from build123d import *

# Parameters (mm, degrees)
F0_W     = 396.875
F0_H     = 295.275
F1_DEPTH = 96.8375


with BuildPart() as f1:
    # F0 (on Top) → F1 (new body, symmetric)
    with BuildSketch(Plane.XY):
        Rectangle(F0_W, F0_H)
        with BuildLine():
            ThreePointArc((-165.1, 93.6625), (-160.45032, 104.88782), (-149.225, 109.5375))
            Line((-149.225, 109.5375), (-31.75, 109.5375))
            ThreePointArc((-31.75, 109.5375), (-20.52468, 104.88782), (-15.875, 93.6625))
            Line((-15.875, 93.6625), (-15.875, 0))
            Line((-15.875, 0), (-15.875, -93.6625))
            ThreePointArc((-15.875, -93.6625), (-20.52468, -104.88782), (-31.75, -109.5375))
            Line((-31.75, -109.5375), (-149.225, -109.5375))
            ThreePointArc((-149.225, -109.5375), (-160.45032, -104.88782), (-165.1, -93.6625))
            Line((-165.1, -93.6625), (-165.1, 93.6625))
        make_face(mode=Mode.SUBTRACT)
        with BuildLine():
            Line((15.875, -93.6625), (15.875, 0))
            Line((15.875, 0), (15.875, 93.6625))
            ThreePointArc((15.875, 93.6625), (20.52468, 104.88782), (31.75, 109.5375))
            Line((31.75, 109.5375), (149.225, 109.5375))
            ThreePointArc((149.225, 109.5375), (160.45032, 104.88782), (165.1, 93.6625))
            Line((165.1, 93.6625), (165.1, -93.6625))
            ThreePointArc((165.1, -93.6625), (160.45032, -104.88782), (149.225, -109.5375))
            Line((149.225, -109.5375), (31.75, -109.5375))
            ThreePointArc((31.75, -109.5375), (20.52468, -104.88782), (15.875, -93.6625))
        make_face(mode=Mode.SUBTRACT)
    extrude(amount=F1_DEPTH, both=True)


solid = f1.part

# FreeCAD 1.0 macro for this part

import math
import FreeCAD as App
import Part
import Sketcher
from FreeCAD import Vector
Q = App.Units.Quantity

doc = App.newDocument("Part")
body = doc.addObject("PartDesign::Body", "Body")

sketch1 = doc.addObject("Sketcher::SketchObject", "Sketch")
body.addObject(sketch1)
sketch1.AttachmentSupport = (doc.XY_Plane, [""])
sketch1.MapMode = "FlatFace"
sketch1.addGeometry([
    Part.LineSegment(Vector(-198, 148, 0), Vector(-198, -148, 0)),
    Part.LineSegment(Vector(-198, -148, 0), Vector(198, -148, 0)),
    Part.LineSegment(Vector(198, -148, 0), Vector(198, 148, 0)),
    Part.LineSegment(Vector(198, 148, 0), Vector(-198, 148, 0)),
    Part.LineSegment(Vector(-165, -94, 0), Vector(-165, 94, 0)),
    Part.ArcOfCircle(Part.Circle(Vector(-149, 94, 0), Vector(0, 0, 1), 16), math.radians(90), math.radians(180)),
    Part.LineSegment(Vector(-149, 110, 0), Vector(-32, 110, 0)),
    Part.ArcOfCircle(Part.Circle(Vector(-32, 94, 0), Vector(0, 0, 1), 16), math.radians(0), math.radians(90)),
    Part.LineSegment(Vector(-16, 94, 0), Vector(-16, -94, 0)),
    Part.ArcOfCircle(Part.Circle(Vector(-32, -94, 0), Vector(0, 0, 1), 16), math.radians(-90), math.radians(0)),
    Part.LineSegment(Vector(-32, -110, 0), Vector(-149, -110, 0)),
    Part.ArcOfCircle(Part.Circle(Vector(-149, -94, 0), Vector(0, 0, 1), 16), math.radians(-180), math.radians(-90)),
    Part.ArcOfCircle(Part.Circle(Vector(32, -94, 0), Vector(0, 0, 1), 16), math.radians(-180), math.radians(-90)),
    Part.LineSegment(Vector(16, -94, 0), Vector(16, 94, 0)),
    Part.ArcOfCircle(Part.Circle(Vector(32, 94, 0), Vector(0, 0, 1), 16), math.radians(90), math.radians(180)),
    Part.LineSegment(Vector(32, 110, 0), Vector(149, 110, 0)),
    Part.ArcOfCircle(Part.Circle(Vector(149, 94, 0), Vector(0, 0, 1), 16), math.radians(0), math.radians(90)),
    Part.LineSegment(Vector(165, 94, 0), Vector(165, -94, 0)),
    Part.ArcOfCircle(Part.Circle(Vector(149, -94, 0), Vector(0, 0, 1), 16), math.radians(-90), math.radians(0)),
    Part.LineSegment(Vector(149, -110, 0), Vector(32, -110, 0)),
], False)
sketch1.addConstraint([
    Sketcher.Constraint("Coincident", 0, 2, 1, 1),
    Sketcher.Constraint("Coincident", 1, 2, 2, 1),
    Sketcher.Constraint("Coincident", 2, 2, 3, 1),
    Sketcher.Constraint("Coincident", 3, 2, 0, 1),
    Sketcher.Constraint("Tangent", 4, 2, 5, 2),
    Sketcher.Constraint("Tangent", 5, 1, 6, 1),
    Sketcher.Constraint("Tangent", 6, 2, 7, 2),
    Sketcher.Constraint("Tangent", 7, 1, 8, 1),
    Sketcher.Constraint("Tangent", 8, 2, 9, 2),
    Sketcher.Constraint("Tangent", 9, 1, 10, 1),
    Sketcher.Constraint("Tangent", 10, 2, 11, 2),
    Sketcher.Constraint("Tangent", 11, 1, 4, 1),
    Sketcher.Constraint("Tangent", 12, 1, 13, 1),
    Sketcher.Constraint("Tangent", 13, 2, 14, 2),
    Sketcher.Constraint("Tangent", 14, 1, 15, 1),
    Sketcher.Constraint("Tangent", 15, 2, 16, 2),
    Sketcher.Constraint("Tangent", 16, 1, 17, 1),
    Sketcher.Constraint("Tangent", 17, 2, 18, 2),
    Sketcher.Constraint("Tangent", 18, 1, 19, 1),
    Sketcher.Constraint("Tangent", 19, 2, 12, 2),
    Sketcher.Constraint("Vertical", 0),
    Sketcher.Constraint("Horizontal", 1),
    Sketcher.Constraint("Vertical", 2),
    Sketcher.Constraint("Horizontal", 3),
    Sketcher.Constraint("Vertical", 4),
    Sketcher.Constraint("Horizontal", 6),
    Sketcher.Constraint("Vertical", 8),
    Sketcher.Constraint("Horizontal", 10),
    Sketcher.Constraint("Vertical", 13),
    Sketcher.Constraint("Horizontal", 15),
    Sketcher.Constraint("Vertical", 17),
    Sketcher.Constraint("Horizontal", 19),
    Sketcher.Constraint("Equal", 5, 7),
    Sketcher.Constraint("Equal", 7, 9),
    Sketcher.Constraint("Equal", 9, 11),
    Sketcher.Constraint("Equal", 11, 12),
    Sketcher.Constraint("Equal", 12, 14),
    Sketcher.Constraint("Equal", 14, 16),
    Sketcher.Constraint("Equal", 16, 18),
    Sketcher.Constraint("Symmetric", 7, 3, 12, 3, -1, 1),
    Sketcher.Constraint("Symmetric", 11, 3, 16, 3, -1, 1),
    Sketcher.Constraint("Symmetric", 0, 2, 2, 2, -1, 1),
    Sketcher.Constraint("Horizontal", 11, 3, 12, 3),
    Sketcher.Constraint("Radius", 5, Q("0.625 in")),
    Sketcher.Constraint("DistanceX", 4, 2, -1, 1, Q("6.5 in")),
    Sketcher.Constraint("DistanceX", 9, 3, 12, 3, Q("2.5 in")),
    Sketcher.Constraint("DistanceY", 0, 2, 5, 3, Q("9.5 in")),
    Sketcher.Constraint("DistanceY", 5, 1, 3, 2, Q("1.5 in")),
    Sketcher.Constraint("DistanceX", 1, 1, 1, 2, Q("15.625 in")),
])
pad1 = doc.addObject("PartDesign::Pad", "Pad")
body.addObject(pad1)
pad1.Profile = sketch1
pad1.Length = Q("7.625 in")
pad1.Midplane = True

doc.recompute()
